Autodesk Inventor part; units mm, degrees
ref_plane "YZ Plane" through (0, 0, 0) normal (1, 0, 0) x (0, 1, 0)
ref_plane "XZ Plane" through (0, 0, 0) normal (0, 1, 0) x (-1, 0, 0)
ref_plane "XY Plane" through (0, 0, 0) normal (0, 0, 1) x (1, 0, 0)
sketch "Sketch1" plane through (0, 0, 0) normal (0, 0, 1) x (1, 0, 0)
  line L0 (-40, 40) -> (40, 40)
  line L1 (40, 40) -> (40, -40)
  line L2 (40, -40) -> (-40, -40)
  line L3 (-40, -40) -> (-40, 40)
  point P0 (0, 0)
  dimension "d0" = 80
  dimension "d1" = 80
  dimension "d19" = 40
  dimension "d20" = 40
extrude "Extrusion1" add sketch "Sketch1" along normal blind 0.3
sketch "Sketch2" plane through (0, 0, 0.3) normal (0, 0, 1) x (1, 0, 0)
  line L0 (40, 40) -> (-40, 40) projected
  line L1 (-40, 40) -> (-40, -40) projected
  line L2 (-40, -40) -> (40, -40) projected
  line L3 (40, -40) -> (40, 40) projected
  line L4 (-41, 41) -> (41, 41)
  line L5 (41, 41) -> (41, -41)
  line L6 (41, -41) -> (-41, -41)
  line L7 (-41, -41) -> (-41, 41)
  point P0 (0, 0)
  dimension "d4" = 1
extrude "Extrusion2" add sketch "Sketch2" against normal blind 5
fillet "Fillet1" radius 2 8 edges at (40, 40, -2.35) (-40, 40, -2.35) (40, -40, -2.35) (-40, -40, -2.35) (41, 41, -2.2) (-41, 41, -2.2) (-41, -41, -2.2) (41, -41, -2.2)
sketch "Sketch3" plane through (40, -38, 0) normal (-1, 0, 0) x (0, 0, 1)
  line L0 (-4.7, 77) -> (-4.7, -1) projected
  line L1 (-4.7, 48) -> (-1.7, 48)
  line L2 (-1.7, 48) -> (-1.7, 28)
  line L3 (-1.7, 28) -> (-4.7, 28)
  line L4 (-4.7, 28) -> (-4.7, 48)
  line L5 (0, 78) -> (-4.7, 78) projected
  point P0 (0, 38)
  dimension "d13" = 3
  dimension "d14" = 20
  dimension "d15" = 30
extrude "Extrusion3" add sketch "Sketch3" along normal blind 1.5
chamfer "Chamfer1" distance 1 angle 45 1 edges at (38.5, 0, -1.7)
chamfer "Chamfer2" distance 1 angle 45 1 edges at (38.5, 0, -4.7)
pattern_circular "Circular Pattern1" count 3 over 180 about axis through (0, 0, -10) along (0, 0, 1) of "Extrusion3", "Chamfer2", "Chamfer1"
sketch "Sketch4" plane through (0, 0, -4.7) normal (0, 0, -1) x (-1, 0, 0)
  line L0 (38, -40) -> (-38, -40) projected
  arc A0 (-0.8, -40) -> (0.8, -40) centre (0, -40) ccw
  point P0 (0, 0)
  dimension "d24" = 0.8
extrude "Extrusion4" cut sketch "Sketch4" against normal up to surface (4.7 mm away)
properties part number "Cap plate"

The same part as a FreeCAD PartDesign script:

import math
import FreeCAD as App
import Part
import Sketcher

V = App.Vector
Q = App.Units.Quantity


def edges_at(feature, points):
    """Names of the edges that pass closest to the given points."""
    edges = feature.Shape.Edges
    near = lambda p: min(range(len(edges)), key=lambda i: edges[i].distToShape(Part.Vertex(*p))[0])
    return sorted({f"Edge{near(p) + 1}" for p in points})


def add_polygon(sketch, points):
    """Adds a closed chain of lines whose ends are joined by coincident constraints."""
    first, n = sketch.GeometryCount, len(points)
    for a, b in zip(points, points[1:] + points[:1]):
        sketch.addGeometry(Part.LineSegment(App.Vector(*a, 0), App.Vector(*b, 0)), False)
    for i in range(n):
        sketch.addConstraint(Sketcher.Constraint("Coincident", first + i, 2, first + (i + 1) % n, 1))

doc = App.newDocument("Part")
params = doc.addObject("Spreadsheet::Sheet", "Params")
for row, (alias, value) in enumerate([
    ("sketch1_width", "80 mm"),
    ("pad1_length", "0.3 mm"),
    ("sketch2_width", "82 mm"),
    ("pad2_length", "5 mm"),
    ("fillet_radius", "2 mm"),
    ("sketch3_width", "20 mm"),
    ("sketch3_height", "3 mm"),
    ("pad3_length", "1.5 mm"),
    ("chamfer_size", "1 mm"),
    ("chamfer2_size", "1 mm"),
    ("sketch4_radius", "0.8 mm"),
    ("pocket1_length", "4.7 mm"),
], start=1):
    params.set(f"A{row}", alias)
    params.set(f"B{row}", "=" + value)
    params.setAlias(f"B{row}", alias)

body = doc.addObject("PartDesign::Body", "Body")

# Sketch on XY plane
sketch1 = body.newObject("Sketcher::SketchObject", "Sketch")
sketch1.AttachmentSupport = (doc.getObject("XY_Plane"), [""])
sketch1.MapMode = "FlatFace"
add_polygon(sketch1, [(40, 40), (-40, 40), (-40, -40), (40, -40)])  # lines 0-3
sketch1.addConstraint([
    Sketcher.Constraint("Horizontal", 0),
    Sketcher.Constraint("Vertical", 1),
    Sketcher.Constraint("Horizontal", 2),
    Sketcher.Constraint("Vertical", 3),
    Sketcher.Constraint("Symmetric", 0, 2, 2, 2, -1, 1),
    Sketcher.Constraint("Equal", 2, 1),
    Sketcher.Constraint("DistanceX", 0, 2, 0, 1, Q("80 mm")),
])
sketch1.setExpression("Constraints[10]", "Params.sketch1_width")
pad1 = body.newObject("PartDesign::Pad", "Pad")
pad1.Profile = sketch1
pad1.setExpression("Length", "Params.pad1_length")

# Sketch on XY plane
sketch2 = body.newObject("Sketcher::SketchObject", "Sketch001")
sketch2.AttachmentSupport = (doc.getObject("XY_Plane"), [""])
sketch2.MapMode = "FlatFace"
sketch2.AttachmentOffset = App.Placement(V(0, 0, 0.3), App.Rotation())
add_polygon(sketch2, [(41, 41), (-41, 41), (-41, -41), (41, -41)])  # lines 0-3
add_polygon(sketch2, [(-40, 40), (40, 40), (40, -40), (-40, -40)])  # lines 4-7
sketch2.addConstraint([
    Sketcher.Constraint("Horizontal", 0),
    Sketcher.Constraint("Vertical", 1),
    Sketcher.Constraint("Horizontal", 2),
    Sketcher.Constraint("Vertical", 3),
    Sketcher.Constraint("Horizontal", 4),
    Sketcher.Constraint("Vertical", 5),
    Sketcher.Constraint("Horizontal", 6),
    Sketcher.Constraint("Vertical", 7),
    Sketcher.Constraint("Symmetric", 0, 2, 2, 2, -1, 1),
    Sketcher.Constraint("Symmetric", 4, 2, 6, 2, -1, 1),
    Sketcher.Constraint("Equal", 2, 1),
    Sketcher.Constraint("Equal", 6, 5),
    Sketcher.Constraint("DistanceX", 4, 2, 3, 2, Q("1 mm")),
    Sketcher.Constraint("DistanceX", 0, 2, 0, 1, Q("82 mm")),
])
sketch2.setExpression("Constraints[21]", "Params.sketch2_width")
pad2 = body.newObject("PartDesign::Pad", "Pad001")
pad2.Profile = sketch2
pad2.setExpression("Length", "Params.pad2_length")
pad2.Reversed = True
doc.recompute()

fillet = body.newObject("PartDesign::Fillet", "Fillet")
fillet.Base = (pad2, edges_at(pad2, [
    (40, 40, -2.35),
    (-40, 40, -2.35),
    (40, -40, -2.35),
    (-40, -40, -2.35),
    (41, 41, -2.2),
    (-41, 41, -2.2),
    (-41, -41, -2.2),
    (41, -41, -2.2),
]))
fillet.setExpression("Radius", "Params.fillet_radius")

# Sketch on YZ plane
sketch3 = body.newObject("Sketcher::SketchObject", "Sketch002")
sketch3.AttachmentSupport = (doc.getObject("YZ_Plane"), [""])
sketch3.MapMode = "FlatFace"
sketch3.AttachmentOffset = App.Placement(V(0, 0, 40), App.Rotation())
add_polygon(sketch3, [(10, -1.7), (10, -4.7), (-10, -4.7), (-10, -1.7)])  # lines 0-3
sketch3.addConstraint([
    Sketcher.Constraint("Vertical", 0),
    Sketcher.Constraint("Horizontal", 1),
    Sketcher.Constraint("Vertical", 2),
    Sketcher.Constraint("Horizontal", 3),
    Sketcher.Constraint("DistanceX", 1, 2, 1, 1, Q("20 mm")),
    Sketcher.Constraint("DistanceY", 0, 2, 0, 1, Q("3 mm")),
    Sketcher.Constraint("DistanceX", -1, 1, 0, 2, Q("10 mm")),
    Sketcher.Constraint("DistanceY", 0, 2, -1, 1, Q("4.7 mm")),
])
sketch3.setExpression("Constraints[8]", "Params.sketch3_width")
sketch3.setExpression("Constraints[9]", "Params.sketch3_height")
pad3 = body.newObject("PartDesign::Pad", "Pad002")
pad3.Profile = sketch3
pad3.setExpression("Length", "Params.pad3_length")
pad3.Reversed = True
doc.recompute()

chamfer = body.newObject("PartDesign::Chamfer", "Chamfer")
chamfer.Base = (pad3, edges_at(pad3, [(38.5, 0, -1.7)]))
chamfer.setExpression("Size", "Params.chamfer_size")
doc.recompute()

chamfer2 = body.newObject("PartDesign::Chamfer", "Chamfer001")
chamfer2.Base = (chamfer, edges_at(chamfer, [(38.5, 0, -4.7)]))
chamfer2.setExpression("Size", "Params.chamfer2_size")
doc.recompute()

polarpattern = body.newObject("PartDesign::PolarPattern", "PolarPattern")
polarpattern.Originals = [pad3, chamfer2, chamfer]
polarpattern.Axis = (doc.getObject("Z_Axis"), [""])
polarpattern.Angle = 180
polarpattern.Occurrences = 3
body.Tip = polarpattern

# Sketch on XY plane
sketch4 = body.newObject("Sketcher::SketchObject", "Sketch003")
sketch4.AttachmentSupport = (doc.getObject("XY_Plane"), [""])
sketch4.MapMode = "FlatFace"
sketch4.AttachmentOffset = App.Placement(V(0, 0, -4.7), App.Rotation())
sketch4.addGeometry([
    Part.ArcOfCircle(Part.Circle(V(0, -40, 0), V(0, 0, 1), 0.8), math.radians(180), math.radians(360)),
    Part.LineSegment(V(-0.8, -40, 0), V(0.8, -40, 0)),
], False)
sketch4.addConstraint([
    Sketcher.Constraint("Coincident", 0, 1, 1, 1),
    Sketcher.Constraint("Coincident", 1, 2, 0, 2),
    Sketcher.Constraint("Horizontal", 1),
    Sketcher.Constraint("PointOnObject", 0, 3, -2),
    Sketcher.Constraint("Radius", 0, Q("0.8 mm")),
    Sketcher.Constraint("DistanceY", 0, 3, -1, 1, Q("40 mm")),
    Sketcher.Constraint("DistanceY", 0, 1, -1, 1, Q("40 mm")),
])
sketch4.setExpression("Constraints[4]", "Params.sketch4_radius")
pocket1 = body.newObject("PartDesign::Pocket", "Pocket")
pocket1.Profile = sketch4
pocket1.setExpression("Length", "Params.pocket1_length")
pocket1.Reversed = True

doc.recompute()
